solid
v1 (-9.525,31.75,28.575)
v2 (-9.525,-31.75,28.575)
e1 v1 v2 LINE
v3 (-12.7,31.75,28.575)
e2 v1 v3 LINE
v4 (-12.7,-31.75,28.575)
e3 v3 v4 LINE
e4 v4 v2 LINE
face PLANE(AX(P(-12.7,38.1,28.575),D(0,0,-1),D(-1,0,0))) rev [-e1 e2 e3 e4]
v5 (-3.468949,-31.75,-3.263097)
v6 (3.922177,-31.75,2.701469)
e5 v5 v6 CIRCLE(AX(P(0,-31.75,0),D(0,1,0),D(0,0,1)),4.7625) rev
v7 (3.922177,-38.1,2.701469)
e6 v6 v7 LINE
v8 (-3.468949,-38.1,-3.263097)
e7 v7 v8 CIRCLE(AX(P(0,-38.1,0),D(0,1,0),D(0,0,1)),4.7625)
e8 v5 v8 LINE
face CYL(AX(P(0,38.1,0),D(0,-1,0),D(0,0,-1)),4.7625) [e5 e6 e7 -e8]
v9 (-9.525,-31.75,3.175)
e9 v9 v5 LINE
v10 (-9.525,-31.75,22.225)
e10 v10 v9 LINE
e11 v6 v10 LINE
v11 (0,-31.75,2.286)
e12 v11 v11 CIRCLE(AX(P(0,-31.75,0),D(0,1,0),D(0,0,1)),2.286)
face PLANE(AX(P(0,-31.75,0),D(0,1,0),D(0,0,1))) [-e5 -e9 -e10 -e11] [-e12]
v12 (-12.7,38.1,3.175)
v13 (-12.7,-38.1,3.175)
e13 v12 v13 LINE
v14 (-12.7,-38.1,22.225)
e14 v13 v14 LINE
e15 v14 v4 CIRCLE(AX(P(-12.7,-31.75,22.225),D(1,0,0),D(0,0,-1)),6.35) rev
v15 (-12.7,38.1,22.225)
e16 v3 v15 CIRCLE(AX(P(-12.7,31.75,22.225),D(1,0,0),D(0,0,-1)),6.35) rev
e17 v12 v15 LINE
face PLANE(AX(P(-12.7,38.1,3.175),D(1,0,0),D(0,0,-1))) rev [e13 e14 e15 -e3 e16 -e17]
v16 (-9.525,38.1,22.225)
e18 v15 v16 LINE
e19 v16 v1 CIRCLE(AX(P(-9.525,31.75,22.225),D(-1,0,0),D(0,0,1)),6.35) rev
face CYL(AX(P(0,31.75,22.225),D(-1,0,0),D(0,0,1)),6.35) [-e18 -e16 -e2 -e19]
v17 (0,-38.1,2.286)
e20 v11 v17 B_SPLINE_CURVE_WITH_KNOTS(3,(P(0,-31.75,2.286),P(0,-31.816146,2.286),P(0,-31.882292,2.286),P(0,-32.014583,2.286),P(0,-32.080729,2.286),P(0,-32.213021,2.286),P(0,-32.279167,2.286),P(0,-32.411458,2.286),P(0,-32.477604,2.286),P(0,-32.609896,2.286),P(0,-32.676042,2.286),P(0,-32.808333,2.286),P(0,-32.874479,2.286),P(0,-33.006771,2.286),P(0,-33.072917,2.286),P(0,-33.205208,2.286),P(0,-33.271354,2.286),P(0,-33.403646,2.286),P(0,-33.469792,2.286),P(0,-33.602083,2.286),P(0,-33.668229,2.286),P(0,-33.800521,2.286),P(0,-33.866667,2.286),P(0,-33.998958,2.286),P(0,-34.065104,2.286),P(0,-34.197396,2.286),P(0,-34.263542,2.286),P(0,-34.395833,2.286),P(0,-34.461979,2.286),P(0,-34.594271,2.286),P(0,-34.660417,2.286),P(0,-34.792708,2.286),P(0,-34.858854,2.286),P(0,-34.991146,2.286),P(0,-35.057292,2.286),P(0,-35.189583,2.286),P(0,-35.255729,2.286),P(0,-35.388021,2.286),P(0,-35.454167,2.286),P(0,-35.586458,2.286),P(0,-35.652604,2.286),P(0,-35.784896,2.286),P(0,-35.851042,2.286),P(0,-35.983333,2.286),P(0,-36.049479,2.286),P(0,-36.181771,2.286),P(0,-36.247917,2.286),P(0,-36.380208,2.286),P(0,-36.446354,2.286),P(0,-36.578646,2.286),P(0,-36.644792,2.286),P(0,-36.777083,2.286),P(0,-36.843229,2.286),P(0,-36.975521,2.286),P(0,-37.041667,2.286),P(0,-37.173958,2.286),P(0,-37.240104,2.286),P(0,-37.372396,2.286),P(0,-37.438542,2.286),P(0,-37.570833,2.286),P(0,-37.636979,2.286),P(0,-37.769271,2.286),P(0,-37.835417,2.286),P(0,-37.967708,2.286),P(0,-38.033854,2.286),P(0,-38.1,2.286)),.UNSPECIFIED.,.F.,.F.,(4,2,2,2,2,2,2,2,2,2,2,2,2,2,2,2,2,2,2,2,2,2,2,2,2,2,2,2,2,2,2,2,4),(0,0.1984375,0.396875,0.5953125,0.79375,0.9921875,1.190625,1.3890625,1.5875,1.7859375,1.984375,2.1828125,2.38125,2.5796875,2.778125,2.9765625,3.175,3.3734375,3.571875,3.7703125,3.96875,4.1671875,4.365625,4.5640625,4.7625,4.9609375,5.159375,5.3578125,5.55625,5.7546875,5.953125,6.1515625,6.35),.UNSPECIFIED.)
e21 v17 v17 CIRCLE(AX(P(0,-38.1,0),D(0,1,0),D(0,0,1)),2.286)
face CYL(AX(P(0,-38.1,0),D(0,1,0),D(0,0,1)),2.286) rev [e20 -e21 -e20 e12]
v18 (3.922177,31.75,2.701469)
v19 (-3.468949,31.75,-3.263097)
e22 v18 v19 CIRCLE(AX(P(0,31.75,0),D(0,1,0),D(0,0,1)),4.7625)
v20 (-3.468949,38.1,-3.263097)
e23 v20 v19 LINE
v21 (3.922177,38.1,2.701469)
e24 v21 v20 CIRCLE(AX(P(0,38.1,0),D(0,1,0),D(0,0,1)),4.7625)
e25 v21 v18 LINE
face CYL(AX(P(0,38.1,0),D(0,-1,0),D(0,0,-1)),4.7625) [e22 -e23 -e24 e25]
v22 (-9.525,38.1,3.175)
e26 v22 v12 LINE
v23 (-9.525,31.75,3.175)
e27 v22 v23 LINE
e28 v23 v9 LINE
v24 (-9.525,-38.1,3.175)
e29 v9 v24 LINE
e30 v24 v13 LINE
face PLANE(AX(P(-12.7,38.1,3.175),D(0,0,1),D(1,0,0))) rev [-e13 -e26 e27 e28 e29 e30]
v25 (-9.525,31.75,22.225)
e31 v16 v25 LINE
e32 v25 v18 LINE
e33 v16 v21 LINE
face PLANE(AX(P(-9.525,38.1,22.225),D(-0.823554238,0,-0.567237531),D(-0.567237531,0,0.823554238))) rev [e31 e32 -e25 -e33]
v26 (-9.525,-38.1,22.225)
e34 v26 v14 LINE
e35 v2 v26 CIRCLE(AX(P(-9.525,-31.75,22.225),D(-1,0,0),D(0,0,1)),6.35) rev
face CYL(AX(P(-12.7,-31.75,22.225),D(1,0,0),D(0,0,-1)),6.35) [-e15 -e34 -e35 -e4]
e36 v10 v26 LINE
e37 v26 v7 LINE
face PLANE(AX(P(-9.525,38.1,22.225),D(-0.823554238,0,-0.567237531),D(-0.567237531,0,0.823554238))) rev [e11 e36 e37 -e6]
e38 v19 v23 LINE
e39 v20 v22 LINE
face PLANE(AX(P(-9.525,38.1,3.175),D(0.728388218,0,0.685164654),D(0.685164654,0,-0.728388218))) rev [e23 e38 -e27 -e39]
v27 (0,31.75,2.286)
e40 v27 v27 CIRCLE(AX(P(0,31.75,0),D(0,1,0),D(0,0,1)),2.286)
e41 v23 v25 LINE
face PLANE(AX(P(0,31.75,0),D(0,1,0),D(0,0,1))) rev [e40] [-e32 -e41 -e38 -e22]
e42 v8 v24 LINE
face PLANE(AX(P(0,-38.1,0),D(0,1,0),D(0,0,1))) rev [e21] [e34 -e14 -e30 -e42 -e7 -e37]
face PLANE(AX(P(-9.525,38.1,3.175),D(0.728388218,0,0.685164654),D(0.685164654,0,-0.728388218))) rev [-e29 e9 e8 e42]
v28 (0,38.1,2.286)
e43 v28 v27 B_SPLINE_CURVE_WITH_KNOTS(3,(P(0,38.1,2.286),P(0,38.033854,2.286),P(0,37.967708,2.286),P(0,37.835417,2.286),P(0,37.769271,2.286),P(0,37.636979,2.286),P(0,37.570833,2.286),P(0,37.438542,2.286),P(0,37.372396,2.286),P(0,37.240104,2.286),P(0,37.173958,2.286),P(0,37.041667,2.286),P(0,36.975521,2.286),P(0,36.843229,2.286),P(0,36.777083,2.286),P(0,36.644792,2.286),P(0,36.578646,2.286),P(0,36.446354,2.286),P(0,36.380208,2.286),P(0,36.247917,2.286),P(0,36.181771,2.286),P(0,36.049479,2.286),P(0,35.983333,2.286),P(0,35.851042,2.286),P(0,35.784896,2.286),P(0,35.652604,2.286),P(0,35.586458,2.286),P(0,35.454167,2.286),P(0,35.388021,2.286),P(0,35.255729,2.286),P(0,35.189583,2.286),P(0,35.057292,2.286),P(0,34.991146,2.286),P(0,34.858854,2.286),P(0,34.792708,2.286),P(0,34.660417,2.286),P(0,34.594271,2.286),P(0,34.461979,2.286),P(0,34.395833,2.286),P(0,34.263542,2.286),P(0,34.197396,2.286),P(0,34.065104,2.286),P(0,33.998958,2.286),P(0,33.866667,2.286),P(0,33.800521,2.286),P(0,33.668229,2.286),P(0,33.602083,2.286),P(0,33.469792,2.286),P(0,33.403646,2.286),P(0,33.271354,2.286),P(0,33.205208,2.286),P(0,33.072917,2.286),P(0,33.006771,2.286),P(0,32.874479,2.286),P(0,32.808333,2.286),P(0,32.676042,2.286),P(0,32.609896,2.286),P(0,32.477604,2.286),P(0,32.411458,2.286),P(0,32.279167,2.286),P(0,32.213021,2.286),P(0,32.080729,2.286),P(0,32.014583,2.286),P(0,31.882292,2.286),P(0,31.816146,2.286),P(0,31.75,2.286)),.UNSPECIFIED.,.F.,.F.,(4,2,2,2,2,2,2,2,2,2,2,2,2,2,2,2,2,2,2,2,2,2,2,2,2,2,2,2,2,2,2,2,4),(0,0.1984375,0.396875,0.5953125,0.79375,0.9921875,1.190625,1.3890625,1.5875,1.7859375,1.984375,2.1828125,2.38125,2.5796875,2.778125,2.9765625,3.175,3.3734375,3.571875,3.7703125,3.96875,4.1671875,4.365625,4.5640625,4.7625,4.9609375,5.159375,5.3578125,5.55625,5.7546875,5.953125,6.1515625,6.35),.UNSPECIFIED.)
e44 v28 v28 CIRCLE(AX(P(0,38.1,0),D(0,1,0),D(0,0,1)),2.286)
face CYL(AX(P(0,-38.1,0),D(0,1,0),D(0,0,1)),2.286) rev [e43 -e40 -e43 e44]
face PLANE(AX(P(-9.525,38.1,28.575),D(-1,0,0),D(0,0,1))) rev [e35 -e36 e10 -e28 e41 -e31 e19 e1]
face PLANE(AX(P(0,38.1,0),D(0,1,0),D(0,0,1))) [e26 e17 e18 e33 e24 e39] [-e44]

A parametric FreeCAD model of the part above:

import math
import FreeCAD as App
import Part
import Sketcher

V = App.Vector
Q = App.Units.Quantity


def edges_at(feature, points):
    """Names of the edges that pass closest to the given points."""
    edges = feature.Shape.Edges
    near = lambda p: min(range(len(edges)), key=lambda i: edges[i].distToShape(Part.Vertex(*p))[0])
    return sorted({f"Edge{near(p) + 1}" for p in points})

doc = App.newDocument("Part")
body = doc.addObject("PartDesign::Body", "Body")

sketch1 = body.newObject("Sketcher::SketchObject", "Sketch")
sketch1.AttachmentSupport = (doc.getObject("XZ_Plane"), [""])
sketch1.MapMode = "FlatFace"
sketch1.addGeometry([
    Part.LineSegment(V(-12.7, 3.175, 0), V(-12.7, 28.575, 0)),
    Part.LineSegment(V(-12.7, 28.575, 0), V(-9.525, 28.575, 0)),
    Part.LineSegment(V(-9.525, 28.575, 0), V(-9.525, 22.225, 0)),
    Part.LineSegment(V(-9.525, 22.225, 0), V(3.922177, 2.701469, 0)),
    Part.ArcOfCircle(Part.Circle(V(0, 0, 0), V(0, 0, 1), 4.7625), math.radians(-136.751442), math.radians(34.557814)),
    Part.LineSegment(V(-3.468949, -3.263097, 0), V(-9.525, 3.175, 0)),
    Part.LineSegment(V(-9.525, 3.175, 0), V(-12.7, 3.175, 0)),
], False)
sketch1.addConstraint([
    Sketcher.Constraint("Coincident", 0, 2, 1, 1),
    Sketcher.Constraint("Coincident", 1, 2, 2, 1),
    Sketcher.Constraint("Coincident", 2, 2, 3, 1),
    Sketcher.Constraint("Tangent", 3, 2, 4, 2),
    Sketcher.Constraint("Tangent", 4, 1, 5, 1),
    Sketcher.Constraint("Coincident", 5, 2, 6, 1),
    Sketcher.Constraint("Coincident", 6, 2, 0, 1),
    Sketcher.Constraint("Vertical", 0),
    Sketcher.Constraint("Horizontal", 1),
    Sketcher.Constraint("Vertical", 2),
    Sketcher.Constraint("Horizontal", 6),
    Sketcher.Constraint("Coincident", 4, 3, -1, 1),
    Sketcher.Constraint("Vertical", 2, 2, 5, 2),
    Sketcher.Constraint("DistanceY", 0, 1, 0, 2, Q("1 in")),
    Sketcher.Constraint("Radius", 4, Q("0.1875 in")),
    Sketcher.Constraint("DistanceY", 2, 2, 2, 1, Q("0.25 in")),
    Sketcher.Constraint("DistanceX", 0, 2, -1, 1, Q("0.5 in")),
    Sketcher.Constraint("DistanceX", 1, 1, 1, 2, Q("0.125 in")),
    Sketcher.Constraint("DistanceY", -1, 1, 0, 2, Q("1.125 in")),
])
pad1 = body.newObject("PartDesign::Pad", "Pad")
pad1.Profile = sketch1
pad1.Length = Q("3 in")
pad1.Midplane = True

sketch2 = body.newObject("Sketcher::SketchObject", "Sketch001")
sketch2.AttachmentSupport = (doc.getObject("XZ_Plane"), [""])
sketch2.MapMode = "FlatFace"
sketch2.addGeometry([
    Part.LineSegment(V(-3.468949, -3.263097, 0), V(-9.525, 3.175, 0)),
    Part.LineSegment(V(-9.525, 3.175, 0), V(-9.525, 22.225, 0)),
    Part.LineSegment(V(-9.525, 22.225, 0), V(3.922177, 2.701469, 0)),
    Part.ArcOfCircle(Part.Circle(V(0, 0, 0), V(0, 0, 1), 4.7625), math.radians(-136.751442), math.radians(34.557814)),
], False)
sketch2.addConstraint([
    Sketcher.Constraint("Coincident", 0, 2, 1, 1),
    Sketcher.Constraint("Coincident", 1, 2, 2, 1),
    Sketcher.Constraint("Tangent", 2, 2, 3, 2),
    Sketcher.Constraint("Tangent", 3, 1, 0, 1),
    Sketcher.Constraint("Vertical", 1),
    Sketcher.Constraint("Coincident", 3, 3, -1, 1),
    Sketcher.Constraint("Radius", 3, Q("0.1875 in")),
    Sketcher.Constraint("DistanceY", 1, 1, 1, 2, Q("0.75 in")),
    Sketcher.Constraint("DistanceX", 0, 2, -1, 1, Q("0.375 in")),
    Sketcher.Constraint("DistanceY", -1, 1, 0, 2, Q("0.125 in")),
])
pocket1 = body.newObject("PartDesign::Pocket", "Pocket")
pocket1.Profile = sketch2
pocket1.Type = "TwoLengths"
pocket1.Length = Q("1.25 in")
pocket1.Length2 = Q("1.25 in")
doc.recompute()

fillet = body.newObject("PartDesign::Fillet", "Fillet")
fillet.Base = (pocket1, edges_at(pocket1, [(-11.113, -38.1, 28.575), (-11.113, 38.1, 28.575)]))
fillet.Radius = Q("0.25 in")

sketch3 = body.newObject("Sketcher::SketchObject", "Sketch002")
sketch3.AttachmentSupport = (doc.getObject("XZ_Plane"), [""])
sketch3.MapMode = "FlatFace"
sketch3.AttachmentOffset = App.Placement(V(0, 0, -1.5 * 25.4), App.Rotation())
sketch3.addGeometry(Part.Circle(V(0, 0, 0), V(0, 0, 1), 2.286), False)
sketch3.addConstraint([
    Sketcher.Constraint("Coincident", 0, 3, -1, 1),
    Sketcher.Constraint("Diameter", 0, Q("0.18 in")),
])
pocket2 = body.newObject("PartDesign::Pocket", "Pocket001")
pocket2.Profile = sketch3
pocket2.Type = "ThroughAll"
pocket2.Reversed = True

doc.recompute()
